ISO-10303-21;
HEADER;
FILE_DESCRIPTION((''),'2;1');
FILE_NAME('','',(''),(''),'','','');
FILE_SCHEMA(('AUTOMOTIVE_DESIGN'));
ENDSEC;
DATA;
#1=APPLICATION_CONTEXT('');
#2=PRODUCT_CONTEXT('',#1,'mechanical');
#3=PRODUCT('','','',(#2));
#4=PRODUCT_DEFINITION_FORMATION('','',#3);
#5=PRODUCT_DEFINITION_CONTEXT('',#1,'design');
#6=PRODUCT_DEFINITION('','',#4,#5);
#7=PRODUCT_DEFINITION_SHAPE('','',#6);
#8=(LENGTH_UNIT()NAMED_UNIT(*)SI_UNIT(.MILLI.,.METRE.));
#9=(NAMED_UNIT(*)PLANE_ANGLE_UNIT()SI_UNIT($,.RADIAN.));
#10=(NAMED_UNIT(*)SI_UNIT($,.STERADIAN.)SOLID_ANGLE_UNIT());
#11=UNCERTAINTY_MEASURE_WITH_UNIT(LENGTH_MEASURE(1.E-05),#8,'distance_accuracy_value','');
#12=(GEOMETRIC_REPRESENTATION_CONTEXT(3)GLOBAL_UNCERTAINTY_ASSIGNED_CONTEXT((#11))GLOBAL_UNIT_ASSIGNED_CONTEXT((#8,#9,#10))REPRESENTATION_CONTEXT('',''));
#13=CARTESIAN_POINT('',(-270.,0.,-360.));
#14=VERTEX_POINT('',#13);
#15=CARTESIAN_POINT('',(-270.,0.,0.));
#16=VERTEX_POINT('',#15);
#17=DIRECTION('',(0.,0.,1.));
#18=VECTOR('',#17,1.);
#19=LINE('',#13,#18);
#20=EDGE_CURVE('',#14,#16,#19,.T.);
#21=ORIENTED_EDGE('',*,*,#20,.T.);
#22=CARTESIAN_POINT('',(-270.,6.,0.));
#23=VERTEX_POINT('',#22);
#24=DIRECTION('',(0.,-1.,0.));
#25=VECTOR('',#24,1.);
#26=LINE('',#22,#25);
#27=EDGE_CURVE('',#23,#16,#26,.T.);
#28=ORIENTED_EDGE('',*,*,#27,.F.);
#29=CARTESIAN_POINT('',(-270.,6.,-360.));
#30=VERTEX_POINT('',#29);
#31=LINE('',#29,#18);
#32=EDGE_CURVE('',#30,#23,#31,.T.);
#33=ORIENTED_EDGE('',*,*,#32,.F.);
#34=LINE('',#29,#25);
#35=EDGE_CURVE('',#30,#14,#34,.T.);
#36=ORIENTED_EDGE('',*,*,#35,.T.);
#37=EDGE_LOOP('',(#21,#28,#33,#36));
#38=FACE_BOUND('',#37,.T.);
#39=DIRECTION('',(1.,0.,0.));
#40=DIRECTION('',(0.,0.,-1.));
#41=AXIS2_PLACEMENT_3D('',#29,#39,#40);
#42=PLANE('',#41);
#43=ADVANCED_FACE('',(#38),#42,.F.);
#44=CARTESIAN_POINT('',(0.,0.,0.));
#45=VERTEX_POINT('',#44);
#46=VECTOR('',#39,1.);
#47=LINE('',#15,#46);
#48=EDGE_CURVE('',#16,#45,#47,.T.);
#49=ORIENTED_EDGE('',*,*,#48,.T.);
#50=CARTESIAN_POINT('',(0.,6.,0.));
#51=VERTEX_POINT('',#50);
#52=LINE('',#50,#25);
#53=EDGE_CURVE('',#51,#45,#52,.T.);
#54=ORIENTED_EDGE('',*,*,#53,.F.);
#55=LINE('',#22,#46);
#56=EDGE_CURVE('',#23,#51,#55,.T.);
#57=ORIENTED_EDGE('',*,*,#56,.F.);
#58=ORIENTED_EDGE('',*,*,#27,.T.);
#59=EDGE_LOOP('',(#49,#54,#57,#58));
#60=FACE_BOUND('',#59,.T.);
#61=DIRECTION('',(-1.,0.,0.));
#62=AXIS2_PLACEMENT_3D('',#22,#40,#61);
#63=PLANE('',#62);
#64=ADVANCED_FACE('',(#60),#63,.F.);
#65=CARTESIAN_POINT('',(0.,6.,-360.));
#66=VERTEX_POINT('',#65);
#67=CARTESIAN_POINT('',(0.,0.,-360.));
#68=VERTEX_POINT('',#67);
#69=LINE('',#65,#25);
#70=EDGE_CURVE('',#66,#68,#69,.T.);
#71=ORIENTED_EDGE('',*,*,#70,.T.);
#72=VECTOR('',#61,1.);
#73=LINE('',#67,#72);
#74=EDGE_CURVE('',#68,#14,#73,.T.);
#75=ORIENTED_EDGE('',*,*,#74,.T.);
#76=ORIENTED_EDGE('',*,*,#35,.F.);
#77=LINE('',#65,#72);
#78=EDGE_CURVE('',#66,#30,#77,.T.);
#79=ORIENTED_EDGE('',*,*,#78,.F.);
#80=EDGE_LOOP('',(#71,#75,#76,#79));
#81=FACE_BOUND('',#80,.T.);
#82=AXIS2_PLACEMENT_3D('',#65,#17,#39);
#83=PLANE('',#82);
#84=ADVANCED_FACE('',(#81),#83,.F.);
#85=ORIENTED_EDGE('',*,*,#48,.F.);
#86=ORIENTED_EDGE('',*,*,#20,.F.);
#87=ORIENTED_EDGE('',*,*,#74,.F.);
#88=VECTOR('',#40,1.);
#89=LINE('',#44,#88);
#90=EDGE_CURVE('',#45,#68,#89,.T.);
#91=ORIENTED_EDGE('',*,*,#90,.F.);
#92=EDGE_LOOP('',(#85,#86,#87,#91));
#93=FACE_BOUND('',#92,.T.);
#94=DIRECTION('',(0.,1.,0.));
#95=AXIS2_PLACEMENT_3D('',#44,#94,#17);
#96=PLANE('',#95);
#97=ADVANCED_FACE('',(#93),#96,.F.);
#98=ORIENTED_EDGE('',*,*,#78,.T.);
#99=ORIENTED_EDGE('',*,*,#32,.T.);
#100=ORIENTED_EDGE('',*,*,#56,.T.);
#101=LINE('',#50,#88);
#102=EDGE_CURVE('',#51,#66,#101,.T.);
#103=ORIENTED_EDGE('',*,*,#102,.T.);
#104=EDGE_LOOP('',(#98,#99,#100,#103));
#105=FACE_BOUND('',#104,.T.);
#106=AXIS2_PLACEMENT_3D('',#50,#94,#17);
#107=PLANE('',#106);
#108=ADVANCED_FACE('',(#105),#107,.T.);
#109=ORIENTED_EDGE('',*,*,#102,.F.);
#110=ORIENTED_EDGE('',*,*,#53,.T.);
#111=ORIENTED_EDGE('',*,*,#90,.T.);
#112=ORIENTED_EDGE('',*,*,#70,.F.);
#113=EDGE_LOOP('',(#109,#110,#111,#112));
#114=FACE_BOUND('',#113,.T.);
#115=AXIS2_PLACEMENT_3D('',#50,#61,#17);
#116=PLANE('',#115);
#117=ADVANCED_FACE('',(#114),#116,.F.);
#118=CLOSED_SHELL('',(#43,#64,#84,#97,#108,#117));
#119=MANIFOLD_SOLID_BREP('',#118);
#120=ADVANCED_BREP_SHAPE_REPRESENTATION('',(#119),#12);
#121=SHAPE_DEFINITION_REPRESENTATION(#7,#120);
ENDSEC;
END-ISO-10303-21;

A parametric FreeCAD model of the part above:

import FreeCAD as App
import Part
import Sketcher
Q = App.Units.Quantity


def add_polygon(sketch, points):
    """Adds a closed chain of lines whose ends are joined by coincident constraints."""
    first, n = sketch.GeometryCount, len(points)
    for a, b in zip(points, points[1:] + points[:1]):
        sketch.addGeometry(Part.LineSegment(App.Vector(*a, 0), App.Vector(*b, 0)), False)
    for i in range(n):
        sketch.addConstraint(Sketcher.Constraint("Coincident", first + i, 2, first + (i + 1) % n, 1))

doc = App.newDocument("Part")
body = doc.addObject("PartDesign::Body", "Body")

# Sketch on XZ plane
sketch1 = body.newObject("Sketcher::SketchObject", "Sketch")
sketch1.AttachmentSupport = (doc.getObject("XZ_Plane"), [""])
sketch1.MapMode = "FlatFace"
add_polygon(sketch1, [(-270, -360), (-270, 0), (0, 0), (0, -360)])  # lines 0-3
sketch1.addConstraint(Sketcher.Constraint("Vertical", 0))
sketch1.addConstraint(Sketcher.Constraint("Horizontal", 1))
sketch1.addConstraint(Sketcher.Constraint("Vertical", 2))
sketch1.addConstraint(Sketcher.Constraint("Horizontal", 3))
sketch1.addConstraint(Sketcher.Constraint("Coincident", 1, 2, -1, 1))
sketch1.addConstraint(Sketcher.Constraint("DistanceX", 1, 1, 1, 2, Q("270 mm")))
sketch1.addConstraint(Sketcher.Constraint("DistanceY", 0, 1, 0, 2, Q("360 mm")))
pad1 = body.newObject("PartDesign::Pad", "Pad")
pad1.Profile = sketch1
pad1.Length = 6
pad1.Reversed = True

doc.recompute()
